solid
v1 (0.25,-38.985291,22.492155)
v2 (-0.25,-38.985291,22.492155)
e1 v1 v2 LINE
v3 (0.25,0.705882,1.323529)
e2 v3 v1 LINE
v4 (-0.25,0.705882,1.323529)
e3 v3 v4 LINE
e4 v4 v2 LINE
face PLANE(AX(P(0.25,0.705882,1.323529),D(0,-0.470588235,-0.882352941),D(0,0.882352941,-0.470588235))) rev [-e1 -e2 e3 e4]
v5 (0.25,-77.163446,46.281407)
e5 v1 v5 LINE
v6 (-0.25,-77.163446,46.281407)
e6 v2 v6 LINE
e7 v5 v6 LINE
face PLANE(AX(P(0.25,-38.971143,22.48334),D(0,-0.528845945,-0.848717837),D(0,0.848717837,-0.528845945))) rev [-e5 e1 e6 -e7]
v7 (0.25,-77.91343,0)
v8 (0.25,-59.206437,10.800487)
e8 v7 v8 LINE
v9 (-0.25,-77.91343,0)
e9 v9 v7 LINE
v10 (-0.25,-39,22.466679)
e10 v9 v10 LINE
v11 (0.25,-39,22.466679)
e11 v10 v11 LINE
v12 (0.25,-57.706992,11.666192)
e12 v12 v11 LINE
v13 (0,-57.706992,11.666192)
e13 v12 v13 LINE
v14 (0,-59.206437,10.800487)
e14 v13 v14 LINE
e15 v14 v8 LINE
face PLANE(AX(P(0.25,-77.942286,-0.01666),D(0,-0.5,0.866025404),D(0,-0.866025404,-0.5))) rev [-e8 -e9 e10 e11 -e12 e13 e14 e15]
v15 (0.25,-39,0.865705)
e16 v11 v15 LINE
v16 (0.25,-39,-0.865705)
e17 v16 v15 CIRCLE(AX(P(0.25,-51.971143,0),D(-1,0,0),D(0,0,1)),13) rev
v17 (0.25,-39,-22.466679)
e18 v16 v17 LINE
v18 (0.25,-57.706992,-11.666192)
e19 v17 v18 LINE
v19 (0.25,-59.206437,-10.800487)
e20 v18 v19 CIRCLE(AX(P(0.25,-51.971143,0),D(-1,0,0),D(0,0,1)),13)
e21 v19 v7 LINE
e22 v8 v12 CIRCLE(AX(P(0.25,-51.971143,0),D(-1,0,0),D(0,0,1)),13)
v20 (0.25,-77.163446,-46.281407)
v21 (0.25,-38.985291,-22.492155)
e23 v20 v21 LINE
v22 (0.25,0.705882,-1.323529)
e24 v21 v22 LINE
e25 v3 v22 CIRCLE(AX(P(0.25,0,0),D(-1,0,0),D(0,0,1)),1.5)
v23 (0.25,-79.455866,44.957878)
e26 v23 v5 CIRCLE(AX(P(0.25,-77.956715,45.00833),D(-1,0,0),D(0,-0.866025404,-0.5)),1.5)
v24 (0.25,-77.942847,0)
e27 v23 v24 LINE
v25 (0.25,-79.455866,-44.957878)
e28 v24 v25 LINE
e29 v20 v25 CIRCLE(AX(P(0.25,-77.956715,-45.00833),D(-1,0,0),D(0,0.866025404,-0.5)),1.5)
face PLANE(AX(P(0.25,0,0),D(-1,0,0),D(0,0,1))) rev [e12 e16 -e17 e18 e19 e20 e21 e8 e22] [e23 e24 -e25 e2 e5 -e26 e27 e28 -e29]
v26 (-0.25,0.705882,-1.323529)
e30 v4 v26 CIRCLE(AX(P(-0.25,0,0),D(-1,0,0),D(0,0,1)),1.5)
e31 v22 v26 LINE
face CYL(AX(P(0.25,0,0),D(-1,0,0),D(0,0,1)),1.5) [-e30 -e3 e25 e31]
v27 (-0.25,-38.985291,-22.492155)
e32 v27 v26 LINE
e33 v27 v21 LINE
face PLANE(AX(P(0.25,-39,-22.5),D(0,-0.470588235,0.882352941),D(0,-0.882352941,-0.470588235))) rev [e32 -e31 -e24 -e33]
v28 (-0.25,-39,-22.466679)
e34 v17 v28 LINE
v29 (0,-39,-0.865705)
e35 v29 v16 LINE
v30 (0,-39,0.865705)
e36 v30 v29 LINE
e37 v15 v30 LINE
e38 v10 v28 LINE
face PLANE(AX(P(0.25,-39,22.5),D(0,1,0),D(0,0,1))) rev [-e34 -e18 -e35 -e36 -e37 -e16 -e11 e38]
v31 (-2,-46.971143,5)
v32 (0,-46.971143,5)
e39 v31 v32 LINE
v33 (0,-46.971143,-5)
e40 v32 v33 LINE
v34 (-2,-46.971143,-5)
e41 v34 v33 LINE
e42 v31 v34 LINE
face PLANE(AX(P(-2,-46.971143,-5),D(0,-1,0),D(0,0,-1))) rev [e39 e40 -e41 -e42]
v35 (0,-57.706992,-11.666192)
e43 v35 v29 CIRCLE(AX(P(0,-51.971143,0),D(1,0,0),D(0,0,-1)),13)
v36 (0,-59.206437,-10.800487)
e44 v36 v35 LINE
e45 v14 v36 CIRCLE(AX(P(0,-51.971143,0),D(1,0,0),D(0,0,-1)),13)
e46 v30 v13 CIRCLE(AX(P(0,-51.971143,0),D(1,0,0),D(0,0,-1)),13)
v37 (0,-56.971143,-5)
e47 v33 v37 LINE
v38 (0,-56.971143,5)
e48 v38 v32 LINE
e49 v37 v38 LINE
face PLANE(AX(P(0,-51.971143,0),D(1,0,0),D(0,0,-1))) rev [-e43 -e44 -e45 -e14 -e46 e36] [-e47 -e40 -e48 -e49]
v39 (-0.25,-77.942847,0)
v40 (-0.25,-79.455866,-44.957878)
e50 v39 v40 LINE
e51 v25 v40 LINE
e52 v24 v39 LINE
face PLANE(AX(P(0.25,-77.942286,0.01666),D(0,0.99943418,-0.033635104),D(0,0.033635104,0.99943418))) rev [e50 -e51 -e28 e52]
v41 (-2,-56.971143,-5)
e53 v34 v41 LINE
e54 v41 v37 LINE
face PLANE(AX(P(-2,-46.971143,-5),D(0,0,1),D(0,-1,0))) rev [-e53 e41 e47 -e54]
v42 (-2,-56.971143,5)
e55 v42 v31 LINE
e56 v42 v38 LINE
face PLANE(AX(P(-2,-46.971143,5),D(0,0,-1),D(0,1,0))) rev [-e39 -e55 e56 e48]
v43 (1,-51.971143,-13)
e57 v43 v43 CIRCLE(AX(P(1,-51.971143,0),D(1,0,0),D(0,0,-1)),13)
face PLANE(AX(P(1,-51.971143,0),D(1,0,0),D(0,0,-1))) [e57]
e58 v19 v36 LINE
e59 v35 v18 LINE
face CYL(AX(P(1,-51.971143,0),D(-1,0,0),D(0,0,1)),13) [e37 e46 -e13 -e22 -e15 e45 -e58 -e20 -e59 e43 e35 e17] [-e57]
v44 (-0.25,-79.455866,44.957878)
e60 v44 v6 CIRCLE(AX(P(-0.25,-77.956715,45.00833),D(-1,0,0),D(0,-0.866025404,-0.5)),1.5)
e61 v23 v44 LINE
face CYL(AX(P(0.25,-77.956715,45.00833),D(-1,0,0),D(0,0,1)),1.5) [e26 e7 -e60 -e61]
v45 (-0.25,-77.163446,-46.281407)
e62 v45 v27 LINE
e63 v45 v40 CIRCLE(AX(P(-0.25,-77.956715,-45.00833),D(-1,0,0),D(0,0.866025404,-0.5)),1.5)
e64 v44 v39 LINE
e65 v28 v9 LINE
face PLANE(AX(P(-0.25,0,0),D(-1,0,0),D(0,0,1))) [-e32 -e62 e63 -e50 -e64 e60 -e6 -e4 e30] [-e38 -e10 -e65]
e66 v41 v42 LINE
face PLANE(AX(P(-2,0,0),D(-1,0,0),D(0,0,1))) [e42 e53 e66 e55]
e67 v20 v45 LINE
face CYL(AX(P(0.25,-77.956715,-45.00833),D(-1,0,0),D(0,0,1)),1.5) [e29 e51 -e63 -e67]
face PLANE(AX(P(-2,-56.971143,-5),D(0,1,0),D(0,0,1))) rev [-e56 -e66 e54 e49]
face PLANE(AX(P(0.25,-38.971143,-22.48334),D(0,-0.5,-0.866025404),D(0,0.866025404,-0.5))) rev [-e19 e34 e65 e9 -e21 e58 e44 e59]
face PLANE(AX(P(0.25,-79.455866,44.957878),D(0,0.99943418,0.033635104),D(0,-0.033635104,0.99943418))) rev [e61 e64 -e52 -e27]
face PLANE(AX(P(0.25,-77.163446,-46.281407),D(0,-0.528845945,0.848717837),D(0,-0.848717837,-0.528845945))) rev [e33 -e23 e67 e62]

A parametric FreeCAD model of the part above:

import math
import FreeCAD as App
import Part
import Sketcher
Q = App.Units.Quantity

doc = App.newDocument("Part")
body = doc.addObject("PartDesign::Body", "Body")

sketch1 = body.newObject("Sketcher::SketchObject", "Sketch")
sketch1.AttachmentSupport = (doc.getObject("YZ_Plane"), [""])
sketch1.MapMode = "FlatFace"
sketch1.addGeometry([
    Part.LineSegment(App.Vector(0.705882, 1.323529, 0), App.Vector(-39, 22.5, 0)),
    Part.LineSegment(App.Vector(-39, 22.5, 0), App.Vector(-39, -22.5, 0)),
    Part.LineSegment(App.Vector(-39, -22.5, 0), App.Vector(0.705882, -1.323529, 0)),
    Part.ArcOfCircle(Part.Circle(App.Vector(0, 0, 0), App.Vector(0, 0, 1), 1.5), math.radians(-61.927513), math.radians(61.927513)),
], False)
sketch1.addConstraint([
    Sketcher.Constraint("Coincident", 0, 2, 1, 1),
    Sketcher.Constraint("Coincident", 1, 2, 2, 1),
    Sketcher.Constraint("Tangent", 2, 2, 3, 1),
    Sketcher.Constraint("Tangent", 3, 2, 0, 1),
    Sketcher.Constraint("Vertical", 1),
    Sketcher.Constraint("Coincident", 3, 3, -1, 1),
    Sketcher.Constraint("Vertical", 2, 2, 3, 2),
    Sketcher.Constraint("Radius", 3, Q("1.5 mm")),
    Sketcher.Constraint("DistanceY", 1, 2, 1, 1, Q("45 mm")),
    Sketcher.Constraint("Distance", 0, Q("45 mm")),
])
pad1 = body.newObject("PartDesign::Pad", "Pad")
pad1.Profile = sketch1
pad1.Length = 0.5
pad1.Midplane = True

sketch2 = body.newObject("Sketcher::SketchObject", "Sketch001")
sketch2.AttachmentSupport = (doc.getObject("YZ_Plane"), [""])
sketch2.MapMode = "FlatFace"
sketch2.addGeometry(Part.Circle(App.Vector(-51.971143, 0, 0), App.Vector(0, 0, 1), 13), False)
sketch2.addConstraint([
    Sketcher.Constraint("PointOnObject", 0, 3, -1),
    Sketcher.Constraint("Diameter", 0, Q("26 mm")),
    Sketcher.Constraint("DistanceX", 0, 3, -1, 1, Q("51.971143 mm")),
])
pad2 = body.newObject("PartDesign::Pad", "Pad001")
pad2.Profile = sketch2
pad2.Length = 1
doc.recompute()

datumline = body.newObject("PartDesign::Line", "DatumLine")
datumline.Placement = App.Placement(App.Vector(0, -51.971143, 0), App.Rotation(App.Vector(0, 0, 1), App.Vector(1, 0, 0)))
polarpattern = body.newObject("PartDesign::PolarPattern", "PolarPattern")
polarpattern.Originals = [pad1]
polarpattern.Axis = (datumline, [""])
polarpattern.Angle = 360
polarpattern.Occurrences = 3
body.Tip = polarpattern

sketch3 = body.newObject("Sketcher::SketchObject", "Sketch002")
sketch3.AttachmentSupport = (doc.getObject("YZ_Plane"), [""])
sketch3.MapMode = "FlatFace"
sketch3.addGeometry([
    Part.LineSegment(App.Vector(-46.971143, -5, 0), App.Vector(-56.971143, -5, 0)),
    Part.LineSegment(App.Vector(-56.971143, -5, 0), App.Vector(-56.971143, 5, 0)),
    Part.LineSegment(App.Vector(-56.971143, 5, 0), App.Vector(-46.971143, 5, 0)),
    Part.LineSegment(App.Vector(-46.971143, 5, 0), App.Vector(-46.971143, -5, 0)),
], False)
sketch3.addConstraint([
    Sketcher.Constraint("Coincident", 0, 2, 1, 1),
    Sketcher.Constraint("Coincident", 1, 2, 2, 1),
    Sketcher.Constraint("Coincident", 2, 2, 3, 1),
    Sketcher.Constraint("Coincident", 3, 2, 0, 1),
    Sketcher.Constraint("Horizontal", 0),
    Sketcher.Constraint("Vertical", 1),
    Sketcher.Constraint("Horizontal", 2),
    Sketcher.Constraint("Vertical", 3),
    Sketcher.Constraint("Equal", 2, 1),
    Sketcher.Constraint("DistanceX", 0, 2, 0, 1, Q("10 mm")),
    Sketcher.Constraint("DistanceY", 0, 2, -1, 1, Q("5 mm")),
    Sketcher.Constraint("DistanceX", 0, 2, -1, 1, Q("56.971143 mm")),
])
pad3 = body.newObject("PartDesign::Pad", "Pad002")
pad3.Profile = sketch3
pad3.Length = 2
pad3.Reversed = True

doc.recompute()
